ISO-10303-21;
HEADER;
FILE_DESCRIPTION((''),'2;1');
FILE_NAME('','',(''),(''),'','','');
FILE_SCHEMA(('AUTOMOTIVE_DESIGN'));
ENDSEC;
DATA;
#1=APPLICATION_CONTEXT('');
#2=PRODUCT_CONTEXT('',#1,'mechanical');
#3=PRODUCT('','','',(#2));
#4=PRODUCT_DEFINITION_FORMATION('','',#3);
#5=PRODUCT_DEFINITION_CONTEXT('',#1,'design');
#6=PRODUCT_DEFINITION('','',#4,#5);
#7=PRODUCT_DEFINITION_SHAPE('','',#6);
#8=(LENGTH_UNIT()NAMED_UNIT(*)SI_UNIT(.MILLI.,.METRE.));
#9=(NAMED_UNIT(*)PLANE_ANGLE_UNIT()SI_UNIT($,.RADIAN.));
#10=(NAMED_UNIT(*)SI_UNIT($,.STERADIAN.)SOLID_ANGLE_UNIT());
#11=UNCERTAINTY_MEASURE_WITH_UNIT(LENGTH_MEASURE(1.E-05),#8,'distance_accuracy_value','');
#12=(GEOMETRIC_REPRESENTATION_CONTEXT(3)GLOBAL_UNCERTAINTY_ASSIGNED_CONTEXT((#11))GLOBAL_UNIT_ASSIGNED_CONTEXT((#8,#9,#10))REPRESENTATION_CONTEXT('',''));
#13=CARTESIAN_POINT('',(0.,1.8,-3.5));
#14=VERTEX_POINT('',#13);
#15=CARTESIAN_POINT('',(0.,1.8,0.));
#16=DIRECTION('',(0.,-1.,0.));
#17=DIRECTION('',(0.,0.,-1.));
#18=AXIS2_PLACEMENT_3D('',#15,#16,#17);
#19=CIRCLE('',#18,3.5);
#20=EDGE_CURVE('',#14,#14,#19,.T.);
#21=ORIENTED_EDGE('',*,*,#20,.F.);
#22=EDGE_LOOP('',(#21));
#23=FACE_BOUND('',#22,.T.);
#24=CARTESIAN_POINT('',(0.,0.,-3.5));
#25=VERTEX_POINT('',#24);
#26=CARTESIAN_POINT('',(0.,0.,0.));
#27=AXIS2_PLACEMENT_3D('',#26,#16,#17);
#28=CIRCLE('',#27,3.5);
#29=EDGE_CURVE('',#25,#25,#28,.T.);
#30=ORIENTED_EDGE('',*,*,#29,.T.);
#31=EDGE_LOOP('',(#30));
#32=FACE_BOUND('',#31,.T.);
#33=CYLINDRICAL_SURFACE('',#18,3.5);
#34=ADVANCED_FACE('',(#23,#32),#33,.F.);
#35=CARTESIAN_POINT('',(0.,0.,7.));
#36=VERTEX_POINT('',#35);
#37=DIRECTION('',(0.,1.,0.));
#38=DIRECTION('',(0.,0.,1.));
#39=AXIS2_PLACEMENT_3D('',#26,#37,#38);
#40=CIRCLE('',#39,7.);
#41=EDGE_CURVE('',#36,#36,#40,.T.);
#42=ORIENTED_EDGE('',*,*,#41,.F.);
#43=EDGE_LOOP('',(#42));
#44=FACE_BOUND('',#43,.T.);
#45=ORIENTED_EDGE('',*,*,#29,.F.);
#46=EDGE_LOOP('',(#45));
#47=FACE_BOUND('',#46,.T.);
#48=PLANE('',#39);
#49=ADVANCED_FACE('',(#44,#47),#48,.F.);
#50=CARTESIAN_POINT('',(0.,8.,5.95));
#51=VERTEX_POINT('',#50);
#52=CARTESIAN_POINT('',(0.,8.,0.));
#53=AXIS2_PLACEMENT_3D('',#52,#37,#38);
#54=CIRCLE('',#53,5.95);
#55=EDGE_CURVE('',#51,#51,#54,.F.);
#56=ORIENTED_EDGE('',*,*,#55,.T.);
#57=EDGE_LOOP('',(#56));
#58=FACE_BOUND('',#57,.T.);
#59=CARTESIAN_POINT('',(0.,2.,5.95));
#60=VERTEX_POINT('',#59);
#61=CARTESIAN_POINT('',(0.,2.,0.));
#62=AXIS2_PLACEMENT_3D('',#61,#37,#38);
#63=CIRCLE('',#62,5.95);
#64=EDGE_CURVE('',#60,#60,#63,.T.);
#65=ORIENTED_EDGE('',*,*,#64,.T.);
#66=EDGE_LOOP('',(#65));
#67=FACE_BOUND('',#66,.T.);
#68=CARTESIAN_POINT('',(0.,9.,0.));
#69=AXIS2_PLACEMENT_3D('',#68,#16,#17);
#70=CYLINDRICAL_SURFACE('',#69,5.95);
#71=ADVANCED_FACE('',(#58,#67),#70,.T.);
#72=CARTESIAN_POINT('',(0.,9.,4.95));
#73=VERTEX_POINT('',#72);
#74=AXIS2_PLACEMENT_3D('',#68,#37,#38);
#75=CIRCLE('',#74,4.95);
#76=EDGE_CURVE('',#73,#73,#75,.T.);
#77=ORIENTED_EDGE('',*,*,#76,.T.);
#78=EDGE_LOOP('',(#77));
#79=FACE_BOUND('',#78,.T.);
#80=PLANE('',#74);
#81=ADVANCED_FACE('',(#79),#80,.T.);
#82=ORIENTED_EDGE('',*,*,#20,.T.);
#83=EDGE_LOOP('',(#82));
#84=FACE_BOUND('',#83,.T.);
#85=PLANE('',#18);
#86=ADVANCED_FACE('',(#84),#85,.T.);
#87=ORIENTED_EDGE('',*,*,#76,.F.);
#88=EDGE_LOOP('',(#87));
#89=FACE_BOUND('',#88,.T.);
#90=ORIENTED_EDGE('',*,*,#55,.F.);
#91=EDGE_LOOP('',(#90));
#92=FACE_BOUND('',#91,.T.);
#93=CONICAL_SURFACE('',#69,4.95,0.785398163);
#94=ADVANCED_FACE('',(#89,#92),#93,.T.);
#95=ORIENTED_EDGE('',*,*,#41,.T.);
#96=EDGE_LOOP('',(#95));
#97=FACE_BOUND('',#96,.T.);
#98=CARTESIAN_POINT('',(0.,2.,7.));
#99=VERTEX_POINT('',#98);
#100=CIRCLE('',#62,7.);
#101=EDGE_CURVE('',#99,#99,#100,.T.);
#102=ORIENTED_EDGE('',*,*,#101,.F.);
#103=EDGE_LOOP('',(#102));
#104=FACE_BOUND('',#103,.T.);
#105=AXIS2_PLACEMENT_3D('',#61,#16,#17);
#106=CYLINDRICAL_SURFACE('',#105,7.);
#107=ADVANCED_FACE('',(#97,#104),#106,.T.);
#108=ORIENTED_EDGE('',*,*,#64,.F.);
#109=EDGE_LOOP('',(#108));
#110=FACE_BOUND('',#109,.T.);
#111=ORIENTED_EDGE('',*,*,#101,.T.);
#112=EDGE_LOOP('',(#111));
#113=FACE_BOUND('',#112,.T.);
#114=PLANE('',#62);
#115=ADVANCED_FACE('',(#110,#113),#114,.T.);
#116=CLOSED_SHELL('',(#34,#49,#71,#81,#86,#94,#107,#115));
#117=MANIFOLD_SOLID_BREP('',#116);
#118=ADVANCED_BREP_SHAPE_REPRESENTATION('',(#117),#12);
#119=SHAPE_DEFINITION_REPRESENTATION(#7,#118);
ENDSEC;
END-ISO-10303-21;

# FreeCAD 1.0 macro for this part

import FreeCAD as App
import Part
import Sketcher

V = App.Vector


def edges_at(feature, points):
    """Names of the edges that pass closest to the given points."""
    edges = feature.Shape.Edges
    near = lambda p: min(range(len(edges)), key=lambda i: edges[i].distToShape(Part.Vertex(*p))[0])
    return sorted({f"Edge{near(p) + 1}" for p in points})

doc = App.newDocument("Part")
body = doc.addObject("PartDesign::Body", "Body")

sketch1 = body.newObject("Sketcher::SketchObject", "Sketch")
sketch1.AttachmentSupport = (doc.getObject("XZ_Plane"), [""])
sketch1.MapMode = "FlatFace"
sketch1.addGeometry(Part.Circle(V(0, 0, 0), V(0, 0, 1), 7), False)
sketch1.addConstraint(Sketcher.Constraint("Coincident", 0, 3, -1, 1))
sketch1.addConstraint(Sketcher.Constraint("Diameter", 0, 14.0))
pad1 = body.newObject("PartDesign::Pad", "Pad")
pad1.Profile = sketch1
pad1.Length = 2
pad1.Reversed = True

sketch2 = body.newObject("Sketcher::SketchObject", "Sketch001")
sketch2.AttachmentSupport = (doc.getObject("XZ_Plane"), [""])
sketch2.MapMode = "FlatFace"
sketch2.AttachmentOffset = App.Placement(V(0, 0, -2), App.Rotation())
sketch2.addGeometry(Part.Circle(V(0, 0, 0), V(0, 0, 1), 6), False)
sketch2.addConstraint(Sketcher.Constraint("Coincident", 0, 3, -1, 1))
sketch2.addConstraint(Sketcher.Constraint("Diameter", 0, 11.9))
pad2 = body.newObject("PartDesign::Pad", "Pad001")
pad2.Profile = sketch2
pad2.Length = 7
pad2.Reversed = True

sketch3 = body.newObject("Sketcher::SketchObject", "Sketch002")
sketch3.AttachmentSupport = (doc.getObject("XZ_Plane"), [""])
sketch3.MapMode = "FlatFace"
sketch3.addGeometry(Part.Circle(V(0, 0, 0), V(0, 0, 1), 3.5), False)
sketch3.addConstraint(Sketcher.Constraint("Coincident", 0, 3, -1, 1))
sketch3.addConstraint(Sketcher.Constraint("Diameter", 0, 7.0))
pocket1 = body.newObject("PartDesign::Pocket", "Pocket")
pocket1.Profile = sketch3
pocket1.Length = 1.8
doc.recompute()

chamfer = body.newObject("PartDesign::Chamfer", "Chamfer")
chamfer.Base = (pocket1, edges_at(pocket1, [(0, 9, -5.95)]))
chamfer.Size = 1

doc.recompute()
